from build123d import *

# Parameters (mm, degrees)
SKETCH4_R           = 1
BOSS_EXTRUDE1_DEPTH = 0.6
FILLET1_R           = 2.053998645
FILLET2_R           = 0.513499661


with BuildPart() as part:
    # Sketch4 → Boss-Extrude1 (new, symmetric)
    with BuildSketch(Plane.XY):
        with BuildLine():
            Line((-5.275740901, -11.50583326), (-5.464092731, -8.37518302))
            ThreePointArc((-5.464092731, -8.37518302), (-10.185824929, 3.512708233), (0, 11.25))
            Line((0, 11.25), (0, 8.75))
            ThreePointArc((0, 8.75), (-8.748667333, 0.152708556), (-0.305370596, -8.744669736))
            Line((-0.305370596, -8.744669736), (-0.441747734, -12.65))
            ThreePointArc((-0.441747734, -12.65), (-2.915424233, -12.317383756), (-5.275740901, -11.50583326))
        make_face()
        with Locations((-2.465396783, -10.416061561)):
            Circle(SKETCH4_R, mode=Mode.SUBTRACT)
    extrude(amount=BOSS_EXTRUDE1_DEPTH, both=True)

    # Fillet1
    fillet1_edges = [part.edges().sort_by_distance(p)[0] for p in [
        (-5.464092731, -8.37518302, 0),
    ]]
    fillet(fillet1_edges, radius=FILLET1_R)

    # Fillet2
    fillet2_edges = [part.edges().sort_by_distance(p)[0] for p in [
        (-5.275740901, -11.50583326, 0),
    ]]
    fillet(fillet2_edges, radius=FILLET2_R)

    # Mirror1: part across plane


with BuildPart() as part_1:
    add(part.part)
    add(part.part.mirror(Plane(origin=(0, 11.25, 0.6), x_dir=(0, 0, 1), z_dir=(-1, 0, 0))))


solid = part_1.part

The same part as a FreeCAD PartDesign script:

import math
import FreeCAD as App
import Part
import Sketcher
Q = App.Units.Quantity


def edges_at(feature, points):
    """Names of the edges that pass closest to the given points."""
    edges = feature.Shape.Edges
    near = lambda p: min(range(len(edges)), key=lambda i: edges[i].distToShape(Part.Vertex(*p))[0])
    return sorted({f"Edge{near(p) + 1}" for p in points})

doc = App.newDocument("Part")
params = doc.addObject("Spreadsheet::Sheet", "Params")
for row, (alias, value) in enumerate([
    ("sketch1_diameter", "2 mm"),
    ("sketch1_radius", "8.75 mm"),
    ("sketch1_height", "2.5 mm"),
    ("pad1_length", "1.2 mm"),
    ("fillet_radius", "2.053999 mm"),
    ("fillet2_radius", "0.5135 mm"),
], start=1):
    params.set(f"A{row}", alias)
    params.set(f"B{row}", "=" + value)
    params.setAlias(f"B{row}", alias)

body = doc.addObject("PartDesign::Body", "Body")

# Sketch on XY plane
sketch1 = body.newObject("Sketcher::SketchObject", "Sketch")
sketch1.AttachmentSupport = (doc.getObject("XY_Plane"), [""])
sketch1.MapMode = "FlatFace"
sketch1.addGeometry([
    Part.LineSegment(App.Vector(-5.5, -8.4, 0), App.Vector(-5.3, -11.5, 0)),  # 0
    Part.ArcOfCircle(Part.Circle(App.Vector(0, 0, 0), App.Vector(0, 0, 1), 12.7), math.radians(-115), math.radians(-92)),  # 1
    Part.LineSegment(App.Vector(-0.4, -12.7, 0), App.Vector(-0.3, -8.7, 0)),  # 2
    Part.ArcOfCircle(Part.Circle(App.Vector(0, 0, 0), App.Vector(0, 0, 1), 8.8), math.radians(90), math.radians(268)),  # 3
    Part.LineSegment(App.Vector(0, 8.8, 0), App.Vector(0, 11.2, 0)),  # 4
    Part.ArcOfCircle(Part.Circle(App.Vector(0, 0.7, 0), App.Vector(0, 0, 1), 10.6), math.radians(90), math.radians(239)),  # 5
    Part.Circle(App.Vector(-2.5, -10.4, 0), App.Vector(0, 0, 1), 1),  # 6
], False)
sketch1.addConstraint([
    Sketcher.Constraint("Coincident", 0, 2, 1, 1),
    Sketcher.Constraint("Coincident", 1, 2, 2, 1),
    Sketcher.Constraint("Coincident", 2, 2, 3, 2),
    Sketcher.Constraint("Coincident", 3, 1, 4, 1),
    Sketcher.Constraint("Coincident", 4, 2, 5, 1),
    Sketcher.Constraint("Coincident", 5, 2, 0, 1),
    Sketcher.Constraint("Vertical", 4),
    Sketcher.Constraint("Coincident", 1, 3, -1, 1),
    Sketcher.Constraint("Coincident", 3, 3, -1, 1),
    Sketcher.Constraint("PointOnObject", 5, 3, -2),
    Sketcher.Constraint("PointOnObject", 3, 1, -2),
    Sketcher.Constraint("Diameter", 6, Q("2 mm")),
    Sketcher.Constraint("Angle", 2, Q("88 deg")),
    Sketcher.Constraint("Radius", 3, Q("8.75 mm")),
    Sketcher.Constraint("DistanceY", 4, 1, 4, 2, Q("2.5 mm")),
    Sketcher.Constraint("DistanceY", 1, 2, -1, 1, Q("12.65 mm")),
    Sketcher.Constraint("Radius", 1, Q("12.657711 mm")),
    Sketcher.Constraint("Radius", 5, Q("10.573255 mm")),
    Sketcher.Constraint("Distance", 0, Q("3.136311 mm")),
    Sketcher.Constraint("DistanceY", 6, 3, -1, 1, Q("10.416062 mm")),
    Sketcher.Constraint("DistanceX", 0, 2, -1, 1, Q("5.275741 mm")),
    Sketcher.Constraint("DistanceX", 6, 3, 1, 2, Q("2.023649 mm")),
])
sketch1.setExpression("Constraints[11]", "Params.sketch1_diameter")
sketch1.setExpression("Constraints[13]", "Params.sketch1_radius")
sketch1.setExpression("Constraints[14]", "Params.sketch1_height")
pad1 = body.newObject("PartDesign::Pad", "Pad")
pad1.Profile = sketch1
pad1.setExpression("Length", "Params.pad1_length")
pad1.Midplane = True
doc.recompute()

fillet = body.newObject("PartDesign::Fillet", "Fillet")
fillet.Base = (pad1, edges_at(pad1, [(-5.464, -8.375, 0)]))
fillet.setExpression("Radius", "Params.fillet_radius")
doc.recompute()

fillet2 = body.newObject("PartDesign::Fillet", "Fillet001")
fillet2.Base = (fillet, edges_at(fillet, [(-5.276, -11.506, 0)]))
fillet2.setExpression("Radius", "Params.fillet2_radius")
body2 = doc.addObject("PartDesign::Body", "Body001")
doc.recompute()

body2.BaseFeature = body
doc.recompute()

mirroring = doc.addObject("Part::Mirroring", "Mirroring")
mirroring.Source = body
mirroring.Base = App.Vector(0, 11.25, 0.6)
mirroring.Normal = App.Vector(-1, 0, 0)
body3 = doc.addObject("PartDesign::Body", "Body002")
body3.BaseFeature = mirroring
boolean = body2.newObject("PartDesign::Boolean", "Boolean")
boolean.Type = "Fuse"
boolean.addObjects([body3])
doc.recompute()
mirroring.Visibility = False

doc.recompute()
